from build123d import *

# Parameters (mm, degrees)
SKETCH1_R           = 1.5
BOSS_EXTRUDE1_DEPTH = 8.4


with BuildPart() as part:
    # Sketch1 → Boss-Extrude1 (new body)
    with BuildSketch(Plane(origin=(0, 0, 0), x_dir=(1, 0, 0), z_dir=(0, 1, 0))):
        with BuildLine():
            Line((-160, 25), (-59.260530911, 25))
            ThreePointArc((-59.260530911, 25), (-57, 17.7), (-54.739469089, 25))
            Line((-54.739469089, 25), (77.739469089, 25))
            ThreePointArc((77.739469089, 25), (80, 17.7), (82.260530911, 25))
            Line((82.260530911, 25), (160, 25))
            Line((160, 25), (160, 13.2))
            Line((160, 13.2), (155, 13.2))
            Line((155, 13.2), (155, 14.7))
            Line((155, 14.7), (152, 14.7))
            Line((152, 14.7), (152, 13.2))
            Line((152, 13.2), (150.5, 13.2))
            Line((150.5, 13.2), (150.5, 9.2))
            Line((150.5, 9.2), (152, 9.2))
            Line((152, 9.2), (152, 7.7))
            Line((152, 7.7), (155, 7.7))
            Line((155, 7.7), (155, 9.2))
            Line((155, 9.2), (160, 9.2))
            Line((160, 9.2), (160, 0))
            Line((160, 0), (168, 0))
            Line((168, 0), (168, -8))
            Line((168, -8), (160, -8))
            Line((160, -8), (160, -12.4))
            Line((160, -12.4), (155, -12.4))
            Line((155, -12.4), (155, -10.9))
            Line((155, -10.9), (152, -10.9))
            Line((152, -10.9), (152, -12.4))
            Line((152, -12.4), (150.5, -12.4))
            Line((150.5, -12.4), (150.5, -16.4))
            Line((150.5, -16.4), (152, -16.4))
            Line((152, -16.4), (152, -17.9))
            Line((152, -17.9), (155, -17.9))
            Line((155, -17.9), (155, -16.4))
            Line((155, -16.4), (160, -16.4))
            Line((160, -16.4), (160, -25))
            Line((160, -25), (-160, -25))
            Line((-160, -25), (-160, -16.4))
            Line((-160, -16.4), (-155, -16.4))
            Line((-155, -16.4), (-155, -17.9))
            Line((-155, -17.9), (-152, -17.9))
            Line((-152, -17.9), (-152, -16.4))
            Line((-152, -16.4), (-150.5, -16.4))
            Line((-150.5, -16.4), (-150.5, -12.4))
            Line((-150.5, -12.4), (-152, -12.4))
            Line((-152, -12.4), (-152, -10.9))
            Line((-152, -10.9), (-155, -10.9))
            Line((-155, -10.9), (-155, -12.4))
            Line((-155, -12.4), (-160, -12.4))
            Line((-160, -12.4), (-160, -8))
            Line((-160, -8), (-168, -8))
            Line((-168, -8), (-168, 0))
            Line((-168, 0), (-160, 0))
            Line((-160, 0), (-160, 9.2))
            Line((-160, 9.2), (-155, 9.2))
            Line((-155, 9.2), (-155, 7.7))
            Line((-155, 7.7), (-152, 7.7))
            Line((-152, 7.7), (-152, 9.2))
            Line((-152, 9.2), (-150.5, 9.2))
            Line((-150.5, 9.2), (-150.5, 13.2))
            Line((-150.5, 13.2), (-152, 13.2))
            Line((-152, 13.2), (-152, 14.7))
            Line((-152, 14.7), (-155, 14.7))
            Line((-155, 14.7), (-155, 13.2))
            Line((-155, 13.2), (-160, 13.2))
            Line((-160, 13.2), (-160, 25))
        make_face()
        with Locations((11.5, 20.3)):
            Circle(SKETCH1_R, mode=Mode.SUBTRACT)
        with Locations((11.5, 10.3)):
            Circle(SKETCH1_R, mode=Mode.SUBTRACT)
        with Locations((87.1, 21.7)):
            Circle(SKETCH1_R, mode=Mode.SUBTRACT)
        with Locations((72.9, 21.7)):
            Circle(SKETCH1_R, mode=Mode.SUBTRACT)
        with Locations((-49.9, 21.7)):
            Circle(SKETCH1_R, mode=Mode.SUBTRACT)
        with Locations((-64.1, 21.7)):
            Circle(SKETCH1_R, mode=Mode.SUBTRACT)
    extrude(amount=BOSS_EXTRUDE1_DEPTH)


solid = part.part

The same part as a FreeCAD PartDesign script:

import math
import FreeCAD as App
import Part
import Sketcher
Q = App.Units.Quantity

doc = App.newDocument("Part")
params = doc.addObject("Spreadsheet::Sheet", "Params")
for row, (alias, value) in enumerate([
    ("sketch1_diameter", "3 mm"),
    ("sketch1_radius", "4 mm"),
    ("sketch1_width", "5 mm"),
    ("sketch1_width2", "3 mm"),
    ("sketch1_width3", "8 mm"),
    ("pad1_length", "8.4 mm"),
], start=1):
    params.set(f"A{row}", alias)
    params.set(f"B{row}", "=" + value)
    params.setAlias(f"B{row}", alias)

body = doc.addObject("PartDesign::Body", "Body")

# Sketch on XZ plane
sketch1 = body.newObject("Sketcher::SketchObject", "Sketch")
sketch1.AttachmentSupport = (doc.getObject("XZ_Plane"), [""])
sketch1.MapMode = "FlatFace"
sketch1.addGeometry(Part.LineSegment(App.Vector(-59.3, -25, 0), App.Vector(-160, -25, 0)), False)
sketch1.addGeometry(Part.LineSegment(App.Vector(-160, -25, 0), App.Vector(-160, -13.2, 0)), False)
sketch1.addGeometry(Part.LineSegment(App.Vector(-160, -13.2, 0), App.Vector(-155, -13.2, 0)), False)
sketch1.addGeometry(Part.LineSegment(App.Vector(-155, -13.2, 0), App.Vector(-155, -14.7, 0)), False)
sketch1.addGeometry(Part.LineSegment(App.Vector(-155, -14.7, 0), App.Vector(-152, -14.7, 0)), False)
sketch1.addGeometry(Part.LineSegment(App.Vector(-152, -14.7, 0), App.Vector(-152, -13.2, 0)), False)
sketch1.addGeometry(Part.LineSegment(App.Vector(-152, -13.2, 0), App.Vector(-150.5, -13.2, 0)), False)
sketch1.addGeometry(Part.LineSegment(App.Vector(-150.5, -13.2, 0), App.Vector(-150.5, -9.2, 0)), False)
sketch1.addGeometry(Part.LineSegment(App.Vector(-150.5, -9.2, 0), App.Vector(-152, -9.2, 0)), False)
sketch1.addGeometry(Part.LineSegment(App.Vector(-152, -9.2, 0), App.Vector(-152, -7.7, 0)), False)
sketch1.addGeometry(Part.LineSegment(App.Vector(-152, -7.7, 0), App.Vector(-155, -7.7, 0)), False)
sketch1.addGeometry(Part.LineSegment(App.Vector(-155, -7.7, 0), App.Vector(-155, -9.2, 0)), False)
sketch1.addGeometry(Part.LineSegment(App.Vector(-155, -9.2, 0), App.Vector(-160, -9.2, 0)), False)
sketch1.addGeometry(Part.LineSegment(App.Vector(-160, -9.2, 0), App.Vector(-160, 0, 0)), False)
sketch1.addGeometry(Part.LineSegment(App.Vector(-160, 0, 0), App.Vector(-168, 0, 0)), False)
sketch1.addGeometry(Part.LineSegment(App.Vector(-168, 0, 0), App.Vector(-168, 8, 0)), False)
sketch1.addGeometry(Part.LineSegment(App.Vector(-168, 8, 0), App.Vector(-160, 8, 0)), False)
sketch1.addGeometry(Part.LineSegment(App.Vector(-160, 8, 0), App.Vector(-160, 12.4, 0)), False)
sketch1.addGeometry(Part.LineSegment(App.Vector(-160, 12.4, 0), App.Vector(-155, 12.4, 0)), False)
sketch1.addGeometry(Part.LineSegment(App.Vector(-155, 12.4, 0), App.Vector(-155, 10.9, 0)), False)
sketch1.addGeometry(Part.LineSegment(App.Vector(-155, 10.9, 0), App.Vector(-152, 10.9, 0)), False)
sketch1.addGeometry(Part.LineSegment(App.Vector(-152, 10.9, 0), App.Vector(-152, 12.4, 0)), False)
sketch1.addGeometry(Part.LineSegment(App.Vector(-152, 12.4, 0), App.Vector(-150.5, 12.4, 0)), False)
sketch1.addGeometry(Part.LineSegment(App.Vector(-150.5, 12.4, 0), App.Vector(-150.5, 16.4, 0)), False)
sketch1.addGeometry(Part.LineSegment(App.Vector(-150.5, 16.4, 0), App.Vector(-152, 16.4, 0)), False)
sketch1.addGeometry(Part.LineSegment(App.Vector(-152, 16.4, 0), App.Vector(-152, 17.9, 0)), False)
sketch1.addGeometry(Part.LineSegment(App.Vector(-152, 17.9, 0), App.Vector(-155, 17.9, 0)), False)
sketch1.addGeometry(Part.LineSegment(App.Vector(-155, 17.9, 0), App.Vector(-155, 16.4, 0)), False)
sketch1.addGeometry(Part.LineSegment(App.Vector(-155, 16.4, 0), App.Vector(-160, 16.4, 0)), False)
sketch1.addGeometry(Part.LineSegment(App.Vector(-160, 16.4, 0), App.Vector(-160, 25, 0)), False)
sketch1.addGeometry(Part.LineSegment(App.Vector(-160, 25, 0), App.Vector(160, 25, 0)), False)
sketch1.addGeometry(Part.LineSegment(App.Vector(160, 25, 0), App.Vector(160, 16.4, 0)), False)
sketch1.addGeometry(Part.LineSegment(App.Vector(160, 16.4, 0), App.Vector(155, 16.4, 0)), False)
sketch1.addGeometry(Part.LineSegment(App.Vector(155, 16.4, 0), App.Vector(155, 17.9, 0)), False)
sketch1.addGeometry(Part.LineSegment(App.Vector(155, 17.9, 0), App.Vector(152, 17.9, 0)), False)
sketch1.addGeometry(Part.LineSegment(App.Vector(152, 17.9, 0), App.Vector(152, 16.4, 0)), False)
sketch1.addGeometry(Part.LineSegment(App.Vector(152, 16.4, 0), App.Vector(150.5, 16.4, 0)), False)
sketch1.addGeometry(Part.LineSegment(App.Vector(150.5, 16.4, 0), App.Vector(150.5, 12.4, 0)), False)
sketch1.addGeometry(Part.LineSegment(App.Vector(150.5, 12.4, 0), App.Vector(152, 12.4, 0)), False)
sketch1.addGeometry(Part.LineSegment(App.Vector(152, 12.4, 0), App.Vector(152, 10.9, 0)), False)
sketch1.addGeometry(Part.LineSegment(App.Vector(152, 10.9, 0), App.Vector(155, 10.9, 0)), False)
sketch1.addGeometry(Part.LineSegment(App.Vector(155, 10.9, 0), App.Vector(155, 12.4, 0)), False)
sketch1.addGeometry(Part.LineSegment(App.Vector(155, 12.4, 0), App.Vector(160, 12.4, 0)), False)
sketch1.addGeometry(Part.LineSegment(App.Vector(160, 12.4, 0), App.Vector(160, 8, 0)), False)
sketch1.addGeometry(Part.LineSegment(App.Vector(160, 8, 0), App.Vector(168, 8, 0)), False)
sketch1.addGeometry(Part.LineSegment(App.Vector(168, 8, 0), App.Vector(168, 0, 0)), False)
sketch1.addGeometry(Part.LineSegment(App.Vector(168, 0, 0), App.Vector(160, 0, 0)), False)
sketch1.addGeometry(Part.LineSegment(App.Vector(160, 0, 0), App.Vector(160, -9.2, 0)), False)
sketch1.addGeometry(Part.LineSegment(App.Vector(160, -9.2, 0), App.Vector(155, -9.2, 0)), False)
sketch1.addGeometry(Part.LineSegment(App.Vector(155, -9.2, 0), App.Vector(155, -7.7, 0)), False)
sketch1.addGeometry(Part.LineSegment(App.Vector(155, -7.7, 0), App.Vector(152, -7.7, 0)), False)
sketch1.addGeometry(Part.LineSegment(App.Vector(152, -7.7, 0), App.Vector(152, -9.2, 0)), False)
sketch1.addGeometry(Part.LineSegment(App.Vector(152, -9.2, 0), App.Vector(150.5, -9.2, 0)), False)
sketch1.addGeometry(Part.LineSegment(App.Vector(150.5, -9.2, 0), App.Vector(150.5, -13.2, 0)), False)
sketch1.addGeometry(Part.LineSegment(App.Vector(150.5, -13.2, 0), App.Vector(152, -13.2, 0)), False)
sketch1.addGeometry(Part.LineSegment(App.Vector(152, -13.2, 0), App.Vector(152, -14.7, 0)), False)
sketch1.addGeometry(Part.LineSegment(App.Vector(152, -14.7, 0), App.Vector(155, -14.7, 0)), False)
sketch1.addGeometry(Part.LineSegment(App.Vector(155, -14.7, 0), App.Vector(155, -13.2, 0)), False)
sketch1.addGeometry(Part.LineSegment(App.Vector(155, -13.2, 0), App.Vector(160, -13.2, 0)), False)
sketch1.addGeometry(Part.LineSegment(App.Vector(160, -13.2, 0), App.Vector(160, -25, 0)), False)
sketch1.addGeometry(Part.LineSegment(App.Vector(160, -25, 0), App.Vector(82.3, -25, 0)), False)
sketch1.addGeometry(Part.ArcOfCircle(Part.Circle(App.Vector(80, -21.7, 0), App.Vector(0, 0, 1), 4), math.radians(-56), math.radians(236)), False)
sketch1.addGeometry(Part.LineSegment(App.Vector(77.7, -25, 0), App.Vector(-54.7, -25, 0)), False)
sketch1.addGeometry(Part.ArcOfCircle(Part.Circle(App.Vector(-57, -21.7, 0), App.Vector(0, 0, 1), 4), math.radians(-56), math.radians(236)), False)
sketch1.addGeometry(Part.Circle(App.Vector(11.5, -10.3, 0), App.Vector(0, 0, 1), 1.5), False)
sketch1.addGeometry(Part.Circle(App.Vector(87.1, -21.7, 0), App.Vector(0, 0, 1), 1.5), False)
sketch1.addGeometry(Part.Circle(App.Vector(72.9, -21.7, 0), App.Vector(0, 0, 1), 1.5), False)
sketch1.addGeometry(Part.Circle(App.Vector(11.5, -20.3, 0), App.Vector(0, 0, 1), 1.5), False)
sketch1.addGeometry(Part.Circle(App.Vector(-49.9, -21.7, 0), App.Vector(0, 0, 1), 1.5), False)
sketch1.addGeometry(Part.Circle(App.Vector(-64.1, -21.7, 0), App.Vector(0, 0, 1), 1.5), False)
sketch1.addConstraint(Sketcher.Constraint("Coincident", 0, 2, 1, 1))
sketch1.addConstraint(Sketcher.Constraint("Coincident", 1, 2, 2, 1))
sketch1.addConstraint(Sketcher.Constraint("Coincident", 2, 2, 3, 1))
sketch1.addConstraint(Sketcher.Constraint("Coincident", 3, 2, 4, 1))
sketch1.addConstraint(Sketcher.Constraint("Coincident", 4, 2, 5, 1))
sketch1.addConstraint(Sketcher.Constraint("Coincident", 5, 2, 6, 1))
sketch1.addConstraint(Sketcher.Constraint("Coincident", 6, 2, 7, 1))
sketch1.addConstraint(Sketcher.Constraint("Coincident", 7, 2, 8, 1))
sketch1.addConstraint(Sketcher.Constraint("Coincident", 8, 2, 9, 1))
sketch1.addConstraint(Sketcher.Constraint("Coincident", 9, 2, 10, 1))
sketch1.addConstraint(Sketcher.Constraint("Coincident", 10, 2, 11, 1))
sketch1.addConstraint(Sketcher.Constraint("Coincident", 11, 2, 12, 1))
sketch1.addConstraint(Sketcher.Constraint("Coincident", 12, 2, 13, 1))
sketch1.addConstraint(Sketcher.Constraint("Coincident", 13, 2, 14, 1))
sketch1.addConstraint(Sketcher.Constraint("Coincident", 14, 2, 15, 1))
sketch1.addConstraint(Sketcher.Constraint("Coincident", 15, 2, 16, 1))
sketch1.addConstraint(Sketcher.Constraint("Coincident", 16, 2, 17, 1))
sketch1.addConstraint(Sketcher.Constraint("Coincident", 17, 2, 18, 1))
sketch1.addConstraint(Sketcher.Constraint("Coincident", 18, 2, 19, 1))
sketch1.addConstraint(Sketcher.Constraint("Coincident", 19, 2, 20, 1))
sketch1.addConstraint(Sketcher.Constraint("Coincident", 20, 2, 21, 1))
sketch1.addConstraint(Sketcher.Constraint("Coincident", 21, 2, 22, 1))
sketch1.addConstraint(Sketcher.Constraint("Coincident", 22, 2, 23, 1))
sketch1.addConstraint(Sketcher.Constraint("Coincident", 23, 2, 24, 1))
sketch1.addConstraint(Sketcher.Constraint("Coincident", 24, 2, 25, 1))
sketch1.addConstraint(Sketcher.Constraint("Coincident", 25, 2, 26, 1))
sketch1.addConstraint(Sketcher.Constraint("Coincident", 26, 2, 27, 1))
sketch1.addConstraint(Sketcher.Constraint("Coincident", 27, 2, 28, 1))
sketch1.addConstraint(Sketcher.Constraint("Coincident", 28, 2, 29, 1))
sketch1.addConstraint(Sketcher.Constraint("Coincident", 29, 2, 30, 1))
sketch1.addConstraint(Sketcher.Constraint("Coincident", 30, 2, 31, 1))
sketch1.addConstraint(Sketcher.Constraint("Coincident", 31, 2, 32, 1))
sketch1.addConstraint(Sketcher.Constraint("Coincident", 32, 2, 33, 1))
sketch1.addConstraint(Sketcher.Constraint("Coincident", 33, 2, 34, 1))
sketch1.addConstraint(Sketcher.Constraint("Coincident", 34, 2, 35, 1))
sketch1.addConstraint(Sketcher.Constraint("Coincident", 35, 2, 36, 1))
sketch1.addConstraint(Sketcher.Constraint("Coincident", 36, 2, 37, 1))
sketch1.addConstraint(Sketcher.Constraint("Coincident", 37, 2, 38, 1))
sketch1.addConstraint(Sketcher.Constraint("Coincident", 38, 2, 39, 1))
sketch1.addConstraint(Sketcher.Constraint("Coincident", 39, 2, 40, 1))
sketch1.addConstraint(Sketcher.Constraint("Coincident", 40, 2, 41, 1))
sketch1.addConstraint(Sketcher.Constraint("Coincident", 41, 2, 42, 1))
sketch1.addConstraint(Sketcher.Constraint("Coincident", 42, 2, 43, 1))
sketch1.addConstraint(Sketcher.Constraint("Coincident", 43, 2, 44, 1))
sketch1.addConstraint(Sketcher.Constraint("Coincident", 44, 2, 45, 1))
sketch1.addConstraint(Sketcher.Constraint("Coincident", 45, 2, 46, 1))
sketch1.addConstraint(Sketcher.Constraint("Coincident", 46, 2, 47, 1))
sketch1.addConstraint(Sketcher.Constraint("Coincident", 47, 2, 48, 1))
sketch1.addConstraint(Sketcher.Constraint("Coincident", 48, 2, 49, 1))
sketch1.addConstraint(Sketcher.Constraint("Coincident", 49, 2, 50, 1))
sketch1.addConstraint(Sketcher.Constraint("Coincident", 50, 2, 51, 1))
sketch1.addConstraint(Sketcher.Constraint("Coincident", 51, 2, 52, 1))
sketch1.addConstraint(Sketcher.Constraint("Coincident", 52, 2, 53, 1))
sketch1.addConstraint(Sketcher.Constraint("Coincident", 53, 2, 54, 1))
sketch1.addConstraint(Sketcher.Constraint("Coincident", 54, 2, 55, 1))
sketch1.addConstraint(Sketcher.Constraint("Coincident", 55, 2, 56, 1))
sketch1.addConstraint(Sketcher.Constraint("Coincident", 56, 2, 57, 1))
sketch1.addConstraint(Sketcher.Constraint("Coincident", 57, 2, 58, 1))
sketch1.addConstraint(Sketcher.Constraint("Coincident", 58, 2, 59, 1))
sketch1.addConstraint(Sketcher.Constraint("Coincident", 59, 2, 60, 1))
sketch1.addConstraint(Sketcher.Constraint("Coincident", 60, 2, 61, 1))
sketch1.addConstraint(Sketcher.Constraint("Coincident", 61, 2, 62, 1))
sketch1.addConstraint(Sketcher.Constraint("Coincident", 62, 2, 63, 1))
sketch1.addConstraint(Sketcher.Constraint("Coincident", 63, 2, 0, 1))
sketch1.addConstraint(Sketcher.Constraint("Horizontal", 0))
sketch1.addConstraint(Sketcher.Constraint("Vertical", 1))
sketch1.addConstraint(Sketcher.Constraint("Horizontal", 2))
sketch1.addConstraint(Sketcher.Constraint("Vertical", 3))
sketch1.addConstraint(Sketcher.Constraint("Horizontal", 4))
sketch1.addConstraint(Sketcher.Constraint("Vertical", 5))
sketch1.addConstraint(Sketcher.Constraint("Horizontal", 6))
sketch1.addConstraint(Sketcher.Constraint("Vertical", 7))
sketch1.addConstraint(Sketcher.Constraint("Horizontal", 8))
sketch1.addConstraint(Sketcher.Constraint("Vertical", 9))
sketch1.addConstraint(Sketcher.Constraint("Horizontal", 10))
sketch1.addConstraint(Sketcher.Constraint("Vertical", 11))
sketch1.addConstraint(Sketcher.Constraint("Horizontal", 12))
sketch1.addConstraint(Sketcher.Constraint("Vertical", 13))
sketch1.addConstraint(Sketcher.Constraint("Horizontal", 14))
sketch1.addConstraint(Sketcher.Constraint("Vertical", 15))
sketch1.addConstraint(Sketcher.Constraint("Horizontal", 16))
sketch1.addConstraint(Sketcher.Constraint("Vertical", 17))
sketch1.addConstraint(Sketcher.Constraint("Horizontal", 18))
sketch1.addConstraint(Sketcher.Constraint("Vertical", 19))
sketch1.addConstraint(Sketcher.Constraint("Horizontal", 20))
sketch1.addConstraint(Sketcher.Constraint("Vertical", 21))
sketch1.addConstraint(Sketcher.Constraint("Horizontal", 22))
sketch1.addConstraint(Sketcher.Constraint("Vertical", 23))
sketch1.addConstraint(Sketcher.Constraint("Horizontal", 24))
sketch1.addConstraint(Sketcher.Constraint("Vertical", 25))
sketch1.addConstraint(Sketcher.Constraint("Horizontal", 26))
sketch1.addConstraint(Sketcher.Constraint("Vertical", 27))
sketch1.addConstraint(Sketcher.Constraint("Horizontal", 28))
sketch1.addConstraint(Sketcher.Constraint("Vertical", 29))
sketch1.addConstraint(Sketcher.Constraint("Horizontal", 30))
sketch1.addConstraint(Sketcher.Constraint("Vertical", 31))
sketch1.addConstraint(Sketcher.Constraint("Horizontal", 32))
sketch1.addConstraint(Sketcher.Constraint("Vertical", 33))
sketch1.addConstraint(Sketcher.Constraint("Horizontal", 34))
sketch1.addConstraint(Sketcher.Constraint("Vertical", 35))
sketch1.addConstraint(Sketcher.Constraint("Horizontal", 36))
sketch1.addConstraint(Sketcher.Constraint("Vertical", 37))
sketch1.addConstraint(Sketcher.Constraint("Horizontal", 38))
sketch1.addConstraint(Sketcher.Constraint("Vertical", 39))
sketch1.addConstraint(Sketcher.Constraint("Horizontal", 40))
sketch1.addConstraint(Sketcher.Constraint("Vertical", 41))
sketch1.addConstraint(Sketcher.Constraint("Horizontal", 42))
sketch1.addConstraint(Sketcher.Constraint("Vertical", 43))
sketch1.addConstraint(Sketcher.Constraint("Horizontal", 44))
sketch1.addConstraint(Sketcher.Constraint("Vertical", 45))
sketch1.addConstraint(Sketcher.Constraint("Horizontal", 46))
sketch1.addConstraint(Sketcher.Constraint("Vertical", 47))
sketch1.addConstraint(Sketcher.Constraint("Horizontal", 48))
sketch1.addConstraint(Sketcher.Constraint("Vertical", 49))
sketch1.addConstraint(Sketcher.Constraint("Horizontal", 50))
sketch1.addConstraint(Sketcher.Constraint("Vertical", 51))
sketch1.addConstraint(Sketcher.Constraint("Horizontal", 52))
sketch1.addConstraint(Sketcher.Constraint("Vertical", 53))
sketch1.addConstraint(Sketcher.Constraint("Horizontal", 54))
sketch1.addConstraint(Sketcher.Constraint("Vertical", 55))
sketch1.addConstraint(Sketcher.Constraint("Horizontal", 56))
sketch1.addConstraint(Sketcher.Constraint("Vertical", 57))
sketch1.addConstraint(Sketcher.Constraint("Horizontal", 58))
sketch1.addConstraint(Sketcher.Constraint("Vertical", 59))
sketch1.addConstraint(Sketcher.Constraint("Horizontal", 60))
sketch1.addConstraint(Sketcher.Constraint("Horizontal", 62))
sketch1.addConstraint(Sketcher.Constraint("Equal", 61, 63))
sketch1.addConstraint(Sketcher.Constraint("Equal", 64, 65))
sketch1.addConstraint(Sketcher.Constraint("Equal", 65, 66))
sketch1.addConstraint(Sketcher.Constraint("Equal", 66, 67))
sketch1.addConstraint(Sketcher.Constraint("Equal", 67, 68))
sketch1.addConstraint(Sketcher.Constraint("Equal", 68, 69))
sketch1.addConstraint(Sketcher.Constraint("Symmetric", 0, 2, 30, 2, -1, 1))
sketch1.addConstraint(Sketcher.Constraint("Symmetric", 14, 2, 45, 2, -1, 1))
sketch1.addConstraint(Sketcher.Constraint("Symmetric", 29, 2, 59, 2, -1, 1))
sketch1.addConstraint(Sketcher.Constraint("Symmetric", 28, 2, 31, 2, -2))
sketch1.addConstraint(Sketcher.Constraint("Symmetric", 26, 2, 33, 2, -2))
sketch1.addConstraint(Sketcher.Constraint("Symmetric", 24, 2, 35, 2, -2))
sketch1.addConstraint(Sketcher.Constraint("Symmetric", 22, 2, 37, 2, -2))
sketch1.addConstraint(Sketcher.Constraint("Symmetric", 20, 2, 39, 2, -2))
sketch1.addConstraint(Sketcher.Constraint("Symmetric", 18, 2, 41, 2, -2))
sketch1.addConstraint(Sketcher.Constraint("Symmetric", 16, 2, 43, 2, -2))
sketch1.addConstraint(Sketcher.Constraint("Symmetric", 13, 2, 46, 2, -2))
sketch1.addConstraint(Sketcher.Constraint("Symmetric", 11, 2, 48, 2, -2))
sketch1.addConstraint(Sketcher.Constraint("Symmetric", 9, 2, 50, 2, -2))
sketch1.addConstraint(Sketcher.Constraint("Symmetric", 7, 2, 52, 2, -2))
sketch1.addConstraint(Sketcher.Constraint("Symmetric", 5, 2, 54, 2, -2))
sketch1.addConstraint(Sketcher.Constraint("Symmetric", 3, 2, 56, 2, -2))
sketch1.addConstraint(Sketcher.Constraint("Horizontal", 61, 3, 63, 3))
sketch1.addConstraint(Sketcher.Constraint("Horizontal", 63, 3, 65, 3))
sketch1.addConstraint(Sketcher.Constraint("Horizontal", 65, 3, 66, 3))
sketch1.addConstraint(Sketcher.Constraint("Horizontal", 66, 3, 68, 3))
sketch1.addConstraint(Sketcher.Constraint("Horizontal", 68, 3, 69, 3))
sketch1.addConstraint(Sketcher.Constraint("Horizontal", 2, 2, 5, 2))
sketch1.addConstraint(Sketcher.Constraint("Horizontal", 8, 2, 11, 2))
sketch1.addConstraint(Sketcher.Constraint("Horizontal", 18, 2, 21, 2))
sketch1.addConstraint(Sketcher.Constraint("Horizontal", 24, 2, 27, 2))
sketch1.addConstraint(Sketcher.Constraint("Horizontal", 54, 2, 57, 2))
sketch1.addConstraint(Sketcher.Constraint("Horizontal", 60, 2, 61, 2))
sketch1.addConstraint(Sketcher.Constraint("Vertical", 64, 3, 67, 3))
sketch1.addConstraint(Sketcher.Constraint("Vertical", 5, 2, 8, 2))
sketch1.addConstraint(Sketcher.Constraint("Vertical", 3, 2, 10, 2))
sketch1.addConstraint(Sketcher.Constraint("Vertical", 1, 2, 12, 2))
sketch1.addConstraint(Sketcher.Constraint("Vertical", 13, 2, 16, 2))
sketch1.addConstraint(Sketcher.Constraint("Vertical", 11, 2, 18, 2))
sketch1.addConstraint(Sketcher.Constraint("Vertical", 9, 2, 20, 2))
sketch1.addConstraint(Sketcher.Constraint("Vertical", 7, 2, 22, 2))
sketch1.addConstraint(Sketcher.Constraint("Vertical", 21, 2, 24, 2))
sketch1.addConstraint(Sketcher.Constraint("Vertical", 19, 2, 26, 2))
sketch1.addConstraint(Sketcher.Constraint("Equal", 54, 3))
sketch1.addConstraint(Sketcher.Constraint("Equal", 5, 9))
sketch1.addConstraint(Sketcher.Constraint("Equal", 46, 15))
sketch1.addConstraint(Sketcher.Constraint("Equal", 11, 19))
sketch1.addConstraint(Sketcher.Constraint("Equal", 7, 23))
sketch1.addConstraint(Sketcher.Constraint("Equal", 21, 25))
sketch1.addConstraint(Sketcher.Constraint("Diameter", 64, Q("3 mm")))
sketch1.addConstraint(Sketcher.Constraint("Radius", 61, Q("4 mm")))
sketch1.addConstraint(Sketcher.Constraint("DistanceX", 2, 1, 2, 2, Q("5 mm")))
sketch1.addConstraint(Sketcher.Constraint("DistanceX", 4, 1, 4, 2, Q("3 mm")))
sketch1.addConstraint(Sketcher.Constraint("DistanceX", 14, 2, 14, 1, Q("8 mm")))
sketch1.addConstraint(Sketcher.Constraint("DistanceX", 30, 1, 30, 2, Q("320 mm")))
sketch1.addConstraint(Sketcher.Constraint("DistanceY", 7, 1, 7, 2, Q("4 mm")))
sketch1.addConstraint(Sketcher.Constraint("DistanceX", 6, 1, 6, 2, Q("1.5 mm")))
sketch1.addConstraint(Sketcher.Constraint("DistanceY", 1, 1, 1, 2, Q("11.8 mm")))
sketch1.addConstraint(Sketcher.Constraint("DistanceY", 13, 1, 13, 2, Q("9.2 mm")))
sketch1.addConstraint(Sketcher.Constraint("DistanceY", 17, 1, 17, 2, Q("4.4 mm")))
sketch1.addConstraint(Sketcher.Constraint("DistanceX", -1, 1, 61, 3, Q("80 mm")))
sketch1.addConstraint(Sketcher.Constraint("DistanceX", 63, 3, -1, 1, Q("57 mm")))
sketch1.addConstraint(Sketcher.Constraint("DistanceY", 61, 3, -1, 1, Q("21.7 mm")))
sketch1.addConstraint(Sketcher.Constraint("DistanceX", -1, 1, 64, 3, Q("11.5 mm")))
sketch1.addConstraint(Sketcher.Constraint("DistanceY", 64, 3, -1, 1, Q("10.3 mm")))
sketch1.addConstraint(Sketcher.Constraint("DistanceX", -1, 1, 65, 3, Q("87.1 mm")))
sketch1.addConstraint(Sketcher.Constraint("DistanceX", -1, 1, 66, 3, Q("72.9 mm")))
sketch1.addConstraint(Sketcher.Constraint("DistanceY", 67, 3, -1, 1, Q("20.3 mm")))
sketch1.addConstraint(Sketcher.Constraint("DistanceX", 68, 3, -1, 1, Q("49.9 mm")))
sketch1.addConstraint(Sketcher.Constraint("DistanceX", 69, 3, -1, 1, Q("64.1 mm")))
sketch1.setExpression("Constraints[175]", "Params.sketch1_diameter")
sketch1.setExpression("Constraints[176]", "Params.sketch1_radius")
sketch1.setExpression("Constraints[177]", "Params.sketch1_width")
sketch1.setExpression("Constraints[178]", "Params.sketch1_width2")
sketch1.setExpression("Constraints[179]", "Params.sketch1_width3")
pad1 = body.newObject("PartDesign::Pad", "Pad")
pad1.Profile = sketch1
pad1.setExpression("Length", "Params.pad1_length")
pad1.Reversed = True

doc.recompute()
